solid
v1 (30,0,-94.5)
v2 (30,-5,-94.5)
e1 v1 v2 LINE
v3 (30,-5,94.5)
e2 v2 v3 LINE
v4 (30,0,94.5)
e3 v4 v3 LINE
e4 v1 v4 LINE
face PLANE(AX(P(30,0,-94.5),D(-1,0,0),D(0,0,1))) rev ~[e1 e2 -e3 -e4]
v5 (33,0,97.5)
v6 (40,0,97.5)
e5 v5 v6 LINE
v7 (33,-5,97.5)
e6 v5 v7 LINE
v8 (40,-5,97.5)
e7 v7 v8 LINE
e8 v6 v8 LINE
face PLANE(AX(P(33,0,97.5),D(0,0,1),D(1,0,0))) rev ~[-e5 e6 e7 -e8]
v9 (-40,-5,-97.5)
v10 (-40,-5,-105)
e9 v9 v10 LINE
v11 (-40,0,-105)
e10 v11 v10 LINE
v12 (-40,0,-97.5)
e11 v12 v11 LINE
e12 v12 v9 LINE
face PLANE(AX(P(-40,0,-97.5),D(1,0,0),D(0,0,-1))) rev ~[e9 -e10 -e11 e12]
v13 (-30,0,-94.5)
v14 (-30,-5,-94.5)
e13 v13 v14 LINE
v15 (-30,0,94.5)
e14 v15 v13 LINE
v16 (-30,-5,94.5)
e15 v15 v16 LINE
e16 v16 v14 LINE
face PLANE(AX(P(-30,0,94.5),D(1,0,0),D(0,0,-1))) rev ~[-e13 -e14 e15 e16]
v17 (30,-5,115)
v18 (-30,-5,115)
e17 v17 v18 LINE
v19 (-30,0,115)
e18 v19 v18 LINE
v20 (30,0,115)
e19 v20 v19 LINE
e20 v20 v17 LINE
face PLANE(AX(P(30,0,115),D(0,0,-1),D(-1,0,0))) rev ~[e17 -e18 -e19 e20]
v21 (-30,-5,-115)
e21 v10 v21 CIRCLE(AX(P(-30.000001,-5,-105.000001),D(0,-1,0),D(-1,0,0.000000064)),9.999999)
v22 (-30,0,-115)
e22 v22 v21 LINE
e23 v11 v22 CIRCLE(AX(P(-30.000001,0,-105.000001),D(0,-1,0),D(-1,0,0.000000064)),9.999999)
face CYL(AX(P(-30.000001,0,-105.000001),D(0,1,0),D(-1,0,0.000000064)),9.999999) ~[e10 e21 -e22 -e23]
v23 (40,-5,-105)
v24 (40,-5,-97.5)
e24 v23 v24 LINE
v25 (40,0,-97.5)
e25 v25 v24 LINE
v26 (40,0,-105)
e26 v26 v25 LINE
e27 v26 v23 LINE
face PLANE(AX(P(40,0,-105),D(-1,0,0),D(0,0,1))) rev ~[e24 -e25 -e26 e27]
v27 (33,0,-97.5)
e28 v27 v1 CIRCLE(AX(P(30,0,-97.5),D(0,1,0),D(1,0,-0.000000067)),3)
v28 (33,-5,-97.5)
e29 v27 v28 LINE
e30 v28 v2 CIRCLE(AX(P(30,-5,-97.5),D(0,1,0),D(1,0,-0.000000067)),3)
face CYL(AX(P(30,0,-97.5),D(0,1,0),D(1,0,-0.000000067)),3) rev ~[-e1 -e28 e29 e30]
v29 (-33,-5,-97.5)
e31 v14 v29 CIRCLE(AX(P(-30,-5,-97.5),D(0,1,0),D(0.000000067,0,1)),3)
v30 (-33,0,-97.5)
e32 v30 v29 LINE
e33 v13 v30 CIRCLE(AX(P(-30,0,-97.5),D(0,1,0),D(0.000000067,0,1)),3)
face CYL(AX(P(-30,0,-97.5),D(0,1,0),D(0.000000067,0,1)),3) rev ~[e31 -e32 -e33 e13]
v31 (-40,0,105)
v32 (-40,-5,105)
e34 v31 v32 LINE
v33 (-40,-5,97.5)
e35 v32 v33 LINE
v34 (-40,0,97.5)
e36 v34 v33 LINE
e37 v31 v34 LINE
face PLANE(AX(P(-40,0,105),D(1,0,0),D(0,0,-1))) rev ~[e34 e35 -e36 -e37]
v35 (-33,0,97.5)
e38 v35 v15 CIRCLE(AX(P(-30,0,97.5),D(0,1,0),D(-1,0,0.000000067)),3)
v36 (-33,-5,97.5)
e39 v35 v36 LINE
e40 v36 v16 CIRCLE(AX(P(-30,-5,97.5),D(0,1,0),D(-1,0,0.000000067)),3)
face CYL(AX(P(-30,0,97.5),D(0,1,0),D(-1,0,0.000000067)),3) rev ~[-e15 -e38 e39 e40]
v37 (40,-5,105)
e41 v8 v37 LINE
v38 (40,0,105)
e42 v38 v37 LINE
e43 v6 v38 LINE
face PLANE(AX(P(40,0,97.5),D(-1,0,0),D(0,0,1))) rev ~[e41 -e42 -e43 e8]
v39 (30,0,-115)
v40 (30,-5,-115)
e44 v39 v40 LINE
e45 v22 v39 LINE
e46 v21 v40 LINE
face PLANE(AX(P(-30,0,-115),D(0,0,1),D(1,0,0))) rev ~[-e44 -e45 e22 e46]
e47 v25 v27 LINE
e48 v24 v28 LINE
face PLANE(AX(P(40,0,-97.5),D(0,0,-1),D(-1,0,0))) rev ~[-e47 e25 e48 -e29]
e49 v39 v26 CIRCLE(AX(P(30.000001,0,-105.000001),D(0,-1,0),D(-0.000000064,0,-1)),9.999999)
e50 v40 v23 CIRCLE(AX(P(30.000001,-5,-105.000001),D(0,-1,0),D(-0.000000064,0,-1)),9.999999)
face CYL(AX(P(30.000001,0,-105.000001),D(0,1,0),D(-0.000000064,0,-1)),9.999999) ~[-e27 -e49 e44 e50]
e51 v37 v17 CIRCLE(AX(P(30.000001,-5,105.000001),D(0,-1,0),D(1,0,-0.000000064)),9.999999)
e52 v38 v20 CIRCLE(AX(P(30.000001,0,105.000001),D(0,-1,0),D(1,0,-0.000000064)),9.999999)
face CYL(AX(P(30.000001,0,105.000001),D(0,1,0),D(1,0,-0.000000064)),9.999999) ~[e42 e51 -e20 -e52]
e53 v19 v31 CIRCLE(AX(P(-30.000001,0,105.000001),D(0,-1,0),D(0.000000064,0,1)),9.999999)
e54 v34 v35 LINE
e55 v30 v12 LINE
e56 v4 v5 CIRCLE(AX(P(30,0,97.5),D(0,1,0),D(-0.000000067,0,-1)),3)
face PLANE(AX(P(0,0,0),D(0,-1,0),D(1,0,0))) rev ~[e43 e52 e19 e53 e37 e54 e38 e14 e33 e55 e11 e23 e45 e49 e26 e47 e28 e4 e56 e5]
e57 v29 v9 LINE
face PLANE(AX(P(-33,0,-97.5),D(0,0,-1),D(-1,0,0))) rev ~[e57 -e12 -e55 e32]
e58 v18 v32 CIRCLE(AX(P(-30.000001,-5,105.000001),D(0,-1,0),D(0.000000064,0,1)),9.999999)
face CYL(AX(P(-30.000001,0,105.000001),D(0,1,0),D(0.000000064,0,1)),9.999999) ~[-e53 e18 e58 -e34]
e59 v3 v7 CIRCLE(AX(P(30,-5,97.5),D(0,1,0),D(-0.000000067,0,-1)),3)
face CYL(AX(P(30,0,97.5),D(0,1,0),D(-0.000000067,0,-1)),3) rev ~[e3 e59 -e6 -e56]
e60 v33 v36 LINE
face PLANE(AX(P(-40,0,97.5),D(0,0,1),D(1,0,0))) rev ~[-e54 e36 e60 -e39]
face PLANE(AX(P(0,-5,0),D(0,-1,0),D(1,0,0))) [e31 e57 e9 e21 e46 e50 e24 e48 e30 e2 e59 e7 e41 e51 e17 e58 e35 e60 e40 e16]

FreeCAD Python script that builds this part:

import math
import FreeCAD as App
import Part
import Sketcher

V = App.Vector

doc = App.newDocument("Part")
params = doc.addObject("Spreadsheet::Sheet", "Params")
for row, (alias, value) in enumerate([
    ("sketch1_radius", "9.999999 mm"),
    ("sketch1_radius2", "3 mm"),
    ("sketch1_width", "60 mm"),
    ("sketch1_height", "189 mm"),
    ("sketch1_height2", "7.5 mm"),
    ("pad1_length", "5 mm"),
], start=1):
    params.set(f"A{row}", alias)
    params.set(f"B{row}", "=" + value)
    params.setAlias(f"B{row}", alias)

body = doc.addObject("PartDesign::Body", "Body")

# Sketch on XZ plane
sketch1 = body.newObject("Sketcher::SketchObject", "Sketch")
sketch1.AttachmentSupport = (doc.getObject("XZ_Plane"), [""])
sketch1.MapMode = "FlatFace"
sketch1.addGeometry([
    Part.ArcOfCircle(Part.Circle(V(30.000001, 105.000001, 0), V(0, 0, 1), 9.999999), math.radians(-0.000004), math.radians(90.000004)),  # 0
    Part.LineSegment(V(30, 115, 0), V(-30, 115, 0)),  # 1
    Part.ArcOfCircle(Part.Circle(V(-30.000001, 105.000001, 0), V(0, 0, 1), 9.999999), math.radians(89.999996), math.radians(180.000004)),  # 2
    Part.LineSegment(V(-40, 105, 0), V(-40, 97.5, 0)),  # 3
    Part.LineSegment(V(-40, 97.5, 0), V(-33, 97.5, 0)),  # 4
    Part.ArcOfCircle(Part.Circle(V(-30, 97.5, 0), V(0, 0, 1), 3), math.radians(-89.999996), math.radians(179.999996)),  # 5
    Part.LineSegment(V(-30, 94.5, 0), V(-30, -94.5, 0)),  # 6
    Part.ArcOfCircle(Part.Circle(V(-30, -97.5, 0), V(0, 0, 1), 3), math.radians(-179.999996), math.radians(89.999996)),  # 7
    Part.LineSegment(V(-33, -97.5, 0), V(-40, -97.5, 0)),  # 8
    Part.LineSegment(V(-40, -97.5, 0), V(-40, -105, 0)),  # 9
    Part.ArcOfCircle(Part.Circle(V(-30.000001, -105.000001, 0), V(0, 0, 1), 9.999999), math.radians(179.999996), math.radians(270.000004)),  # 10
    Part.LineSegment(V(-30, -115, 0), V(30, -115, 0)),  # 11
    Part.ArcOfCircle(Part.Circle(V(30.000001, -105.000001, 0), V(0, 0, 1), 9.999999), math.radians(-90.000004), math.radians(0.000004)),  # 12
    Part.LineSegment(V(40, -105, 0), V(40, -97.5, 0)),  # 13
    Part.LineSegment(V(40, -97.5, 0), V(33, -97.5, 0)),  # 14
    Part.ArcOfCircle(Part.Circle(V(30, -97.5, 0), V(0, 0, 1), 3), math.radians(90.000004), math.radians(359.999996)),  # 15
    Part.LineSegment(V(30, -94.5, 0), V(30, 94.5, 0)),  # 16
    Part.ArcOfCircle(Part.Circle(V(30, 97.5, 0), V(0, 0, 1), 3), math.radians(0.000004), math.radians(269.999996)),  # 17
    Part.LineSegment(V(33, 97.5, 0), V(40, 97.5, 0)),  # 18
    Part.LineSegment(V(40, 97.5, 0), V(40, 105, 0)),  # 19
], False)
sketch1.addConstraint([
    Sketcher.Constraint("Tangent", 0, 2, 1, 1),
    Sketcher.Constraint("Tangent", 1, 2, 2, 1),
    Sketcher.Constraint("Tangent", 2, 2, 3, 1),
    Sketcher.Constraint("Coincident", 3, 2, 4, 1),
    Sketcher.Constraint("Coincident", 4, 2, 5, 2),
    Sketcher.Constraint("Coincident", 5, 1, 6, 1),
    Sketcher.Constraint("Coincident", 6, 2, 7, 2),
    Sketcher.Constraint("Coincident", 7, 1, 8, 1),
    Sketcher.Constraint("Coincident", 8, 2, 9, 1),
    Sketcher.Constraint("Tangent", 9, 2, 10, 1),
    Sketcher.Constraint("Tangent", 10, 2, 11, 1),
    Sketcher.Constraint("Tangent", 11, 2, 12, 1),
    Sketcher.Constraint("Tangent", 12, 2, 13, 1),
    Sketcher.Constraint("Coincident", 13, 2, 14, 1),
    Sketcher.Constraint("Coincident", 14, 2, 15, 2),
    Sketcher.Constraint("Coincident", 15, 1, 16, 1),
    Sketcher.Constraint("Coincident", 16, 2, 17, 2),
    Sketcher.Constraint("Coincident", 17, 1, 18, 1),
    Sketcher.Constraint("Coincident", 18, 2, 19, 1),
    Sketcher.Constraint("Tangent", 19, 2, 0, 1),
    Sketcher.Constraint("Horizontal", 1),
    Sketcher.Constraint("Vertical", 3),
    Sketcher.Constraint("Horizontal", 4),
    Sketcher.Constraint("Vertical", 6),
    Sketcher.Constraint("Horizontal", 8),
    Sketcher.Constraint("Vertical", 9),
    Sketcher.Constraint("Horizontal", 11),
    Sketcher.Constraint("Vertical", 13),
    Sketcher.Constraint("Horizontal", 14),
    Sketcher.Constraint("Vertical", 16),
    Sketcher.Constraint("Horizontal", 18),
    Sketcher.Constraint("Vertical", 19),
    Sketcher.Constraint("Equal", 0, 2),
    Sketcher.Constraint("Equal", 5, 7),
    Sketcher.Constraint("Equal", 2, 10),
    Sketcher.Constraint("Equal", 10, 12),
    Sketcher.Constraint("Equal", 7, 15),
    Sketcher.Constraint("Equal", 15, 17),
    Sketcher.Constraint("Symmetric", 0, 3, 10, 3, -1, 1),
    Sketcher.Constraint("Symmetric", 5, 3, 15, 3, -1, 1),
    Sketcher.Constraint("Symmetric", 7, 3, 17, 3, -1, 1),
    Sketcher.Constraint("Symmetric", 3, 2, 13, 2, -1, 1),
    Sketcher.Constraint("Symmetric", 7, 3, 15, 3, -2),
    Sketcher.Constraint("Symmetric", 8, 2, 13, 2, -2),
    Sketcher.Constraint("Horizontal", 17, 3, 3, 2),
    Sketcher.Constraint("Horizontal", 4, 2, 17, 1),
    Sketcher.Constraint("Vertical", 2, 3, 5, 3),
    Sketcher.Constraint("Vertical", 1, 2, 5, 1),
    Sketcher.Constraint("Vertical", 11, 2, 15, 1),
    Sketcher.Constraint("Radius", 0, 9.999999),
    Sketcher.Constraint("Radius", 5, 3.0),
    Sketcher.Constraint("DistanceX", 1, 2, 1, 1, 60.0),
    Sketcher.Constraint("DistanceY", 6, 2, 6, 1, 189.0),
    Sketcher.Constraint("DistanceY", 3, 2, 3, 1, 7.5),
])
sketch1.setExpression("Constraints[49]", "Params.sketch1_radius")
sketch1.setExpression("Constraints[50]", "Params.sketch1_radius2")
sketch1.setExpression("Constraints[51]", "Params.sketch1_width")
sketch1.setExpression("Constraints[52]", "Params.sketch1_height")
sketch1.setExpression("Constraints[53]", "Params.sketch1_height2")
pad1 = body.newObject("PartDesign::Pad", "Pad")
pad1.Profile = sketch1
pad1.setExpression("Length", "Params.pad1_length")

doc.recompute()
